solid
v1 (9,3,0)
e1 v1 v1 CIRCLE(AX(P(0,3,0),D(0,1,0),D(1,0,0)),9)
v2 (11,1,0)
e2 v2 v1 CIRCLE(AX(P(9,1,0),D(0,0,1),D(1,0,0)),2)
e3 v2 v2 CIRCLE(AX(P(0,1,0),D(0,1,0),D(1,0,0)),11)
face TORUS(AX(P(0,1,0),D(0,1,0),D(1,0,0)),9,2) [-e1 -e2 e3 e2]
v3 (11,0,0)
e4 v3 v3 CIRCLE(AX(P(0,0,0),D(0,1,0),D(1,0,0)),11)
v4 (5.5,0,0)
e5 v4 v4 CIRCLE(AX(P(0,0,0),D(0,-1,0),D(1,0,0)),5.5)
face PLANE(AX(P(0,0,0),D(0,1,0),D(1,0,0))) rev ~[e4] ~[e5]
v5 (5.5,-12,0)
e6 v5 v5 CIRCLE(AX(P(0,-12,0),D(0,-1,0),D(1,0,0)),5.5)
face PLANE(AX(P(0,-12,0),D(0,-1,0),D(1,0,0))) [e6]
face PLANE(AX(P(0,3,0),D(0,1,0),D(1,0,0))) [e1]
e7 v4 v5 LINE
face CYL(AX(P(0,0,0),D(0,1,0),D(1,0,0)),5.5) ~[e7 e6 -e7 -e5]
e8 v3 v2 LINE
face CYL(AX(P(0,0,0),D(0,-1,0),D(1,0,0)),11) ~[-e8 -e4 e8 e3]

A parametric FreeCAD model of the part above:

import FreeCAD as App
import Part
import Sketcher
from FreeCAD import Vector
Q = App.Units.Quantity


def edges_at(feature, points):
    """Names of the edges that pass closest to the given points."""
    edges = feature.Shape.Edges
    near = lambda p: min(range(len(edges)), key=lambda i: edges[i].distToShape(Part.Vertex(*p))[0])
    return sorted({f"Edge{near(p) + 1}" for p in points})

doc = App.newDocument("Part")
body = doc.addObject("PartDesign::Body", "Body")

sketch1 = body.newObject("Sketcher::SketchObject", "Sketch")
sketch1.AttachmentSupport = (doc.getObject("XZ_Plane"), [""])
sketch1.MapMode = "FlatFace"
sketch1.addGeometry(Part.Circle(Vector(0, 0, 0), Vector(0, 0, 1), 11), False)
sketch1.addConstraint(Sketcher.Constraint("Coincident", 0, 3, -1, 1))
sketch1.addConstraint(Sketcher.Constraint("Diameter", 0, Q("22 mm")))
pad1 = body.newObject("PartDesign::Pad", "Pad")
pad1.Profile = sketch1
pad1.Length = 3
pad1.Reversed = True

sketch2 = body.newObject("Sketcher::SketchObject", "Sketch001")
sketch2.AttachmentSupport = (doc.getObject("XZ_Plane"), [""])
sketch2.MapMode = "FlatFace"
sketch2.addGeometry(Part.Circle(Vector(0, 0, 0), Vector(0, 0, 1), 5.5), False)
sketch2.addConstraint(Sketcher.Constraint("Coincident", 0, 3, -1, 1))
sketch2.addConstraint(Sketcher.Constraint("Diameter", 0, Q("11 mm")))
pad2 = body.newObject("PartDesign::Pad", "Pad001")
pad2.Profile = sketch2
pad2.Length = 12
doc.recompute()

fillet = body.newObject("PartDesign::Fillet", "Fillet")
fillet.Base = (pad2, edges_at(pad2, [(-11, 3, 0)]))
fillet.Radius = 2

doc.recompute()
